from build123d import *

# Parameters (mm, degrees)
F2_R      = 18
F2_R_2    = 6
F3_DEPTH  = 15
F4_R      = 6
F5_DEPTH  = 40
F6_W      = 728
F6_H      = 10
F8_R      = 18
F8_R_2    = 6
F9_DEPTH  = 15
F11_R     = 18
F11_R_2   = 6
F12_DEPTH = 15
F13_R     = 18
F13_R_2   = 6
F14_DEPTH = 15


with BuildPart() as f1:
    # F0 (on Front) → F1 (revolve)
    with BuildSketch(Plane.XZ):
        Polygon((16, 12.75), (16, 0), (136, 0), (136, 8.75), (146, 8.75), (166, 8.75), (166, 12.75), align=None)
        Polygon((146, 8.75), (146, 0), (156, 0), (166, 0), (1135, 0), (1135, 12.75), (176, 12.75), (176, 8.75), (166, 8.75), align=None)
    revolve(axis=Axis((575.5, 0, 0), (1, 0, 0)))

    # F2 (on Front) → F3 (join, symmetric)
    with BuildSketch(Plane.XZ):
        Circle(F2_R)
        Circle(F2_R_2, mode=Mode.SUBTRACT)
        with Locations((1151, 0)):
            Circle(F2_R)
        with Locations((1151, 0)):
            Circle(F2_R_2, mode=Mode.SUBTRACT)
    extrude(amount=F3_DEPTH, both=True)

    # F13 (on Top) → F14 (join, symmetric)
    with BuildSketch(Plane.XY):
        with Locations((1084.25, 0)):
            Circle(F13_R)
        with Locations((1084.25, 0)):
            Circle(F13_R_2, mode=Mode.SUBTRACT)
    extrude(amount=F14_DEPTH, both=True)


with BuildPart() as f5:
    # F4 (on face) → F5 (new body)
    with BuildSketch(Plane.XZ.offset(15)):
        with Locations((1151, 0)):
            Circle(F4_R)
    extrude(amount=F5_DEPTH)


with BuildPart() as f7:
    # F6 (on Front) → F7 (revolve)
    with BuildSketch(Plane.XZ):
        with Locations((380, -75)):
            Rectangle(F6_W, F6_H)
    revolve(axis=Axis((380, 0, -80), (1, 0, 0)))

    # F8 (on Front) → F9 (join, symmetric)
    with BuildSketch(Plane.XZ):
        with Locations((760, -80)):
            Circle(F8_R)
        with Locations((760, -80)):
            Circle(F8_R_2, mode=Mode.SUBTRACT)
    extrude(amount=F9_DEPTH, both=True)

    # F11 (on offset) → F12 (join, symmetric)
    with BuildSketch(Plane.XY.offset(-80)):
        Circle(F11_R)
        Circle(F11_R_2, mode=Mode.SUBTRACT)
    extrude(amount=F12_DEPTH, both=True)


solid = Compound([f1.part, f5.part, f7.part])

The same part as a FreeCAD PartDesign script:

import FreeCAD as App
import Part
import Sketcher
from FreeCAD import Vector
Q = App.Units.Quantity

doc = App.newDocument("Part")
body = doc.addObject("PartDesign::Body", "Body")

sketch1 = body.newObject("Sketcher::SketchObject", "Sketch")
sketch1.AttachmentSupport = (doc.getObject("XZ_Plane"), [""])
sketch1.MapMode = "FlatFace"
sketch1.addGeometry([
    Part.LineSegment(Vector(16, 12.8, 0), Vector(16, 0, 0)),
    Part.LineSegment(Vector(16, 0, 0), Vector(136, 0, 0)),
    Part.LineSegment(Vector(136, 0, 0), Vector(136, 8.8, 0)),
    Part.LineSegment(Vector(136, 8.8, 0), Vector(146, 8.8, 0)),
    Part.LineSegment(Vector(146, 8.8, 0), Vector(146, 0, 0)),
    Part.LineSegment(Vector(146, 0, 0), Vector(1135, 0, 0)),
    Part.LineSegment(Vector(1135, 0, 0), Vector(1135, 12.8, 0)),
    Part.LineSegment(Vector(1135, 12.8, 0), Vector(176, 12.8, 0)),
    Part.LineSegment(Vector(176, 12.8, 0), Vector(176, 8.8, 0)),
    Part.LineSegment(Vector(176, 8.8, 0), Vector(166, 8.8, 0)),
    Part.LineSegment(Vector(166, 8.8, 0), Vector(166, 12.8, 0)),
    Part.LineSegment(Vector(166, 12.8, 0), Vector(16, 12.8, 0)),
], False)
sketch1.addConstraint([
    Sketcher.Constraint("Coincident", 0, 2, 1, 1),
    Sketcher.Constraint("Coincident", 1, 2, 2, 1),
    Sketcher.Constraint("Coincident", 2, 2, 3, 1),
    Sketcher.Constraint("Coincident", 3, 2, 4, 1),
    Sketcher.Constraint("Coincident", 4, 2, 5, 1),
    Sketcher.Constraint("Coincident", 5, 2, 6, 1),
    Sketcher.Constraint("Coincident", 6, 2, 7, 1),
    Sketcher.Constraint("Coincident", 7, 2, 8, 1),
    Sketcher.Constraint("Coincident", 8, 2, 9, 1),
    Sketcher.Constraint("Coincident", 9, 2, 10, 1),
    Sketcher.Constraint("Coincident", 10, 2, 11, 1),
    Sketcher.Constraint("Coincident", 11, 2, 0, 1),
    Sketcher.Constraint("Vertical", 0),
    Sketcher.Constraint("Horizontal", 1),
    Sketcher.Constraint("Vertical", 2),
    Sketcher.Constraint("Horizontal", 3),
    Sketcher.Constraint("Vertical", 4),
    Sketcher.Constraint("Horizontal", 5),
    Sketcher.Constraint("Vertical", 6),
    Sketcher.Constraint("Horizontal", 7),
    Sketcher.Constraint("Vertical", 8),
    Sketcher.Constraint("Horizontal", 9),
    Sketcher.Constraint("Vertical", 10),
    Sketcher.Constraint("Horizontal", 11),
    Sketcher.Constraint("PointOnObject", 0, 2, -1),
    Sketcher.Constraint("PointOnObject", 4, 2, -1),
    Sketcher.Constraint("Horizontal", 3, 2, 8, 2),
    Sketcher.Constraint("Horizontal", 7, 2, 10, 2),
    Sketcher.Constraint("Equal", 3, 9),
    Sketcher.Constraint("DistanceX", 1, 1, 1, 2, Q("120 mm")),
    Sketcher.Constraint("DistanceX", 3, 1, 3, 2, Q("10 mm")),
    Sketcher.Constraint("DistanceX", 5, 1, 5, 2, Q("989 mm")),
    Sketcher.Constraint("DistanceX", 7, 2, 7, 1, Q("959 mm")),
    Sketcher.Constraint("DistanceY", 8, 2, 8, 1, Q("4 mm")),
    Sketcher.Constraint("DistanceX", -1, 1, 0, 2, Q("16 mm")),
    Sketcher.Constraint("DistanceY", 0, 2, 0, 1, Q("12.75 mm")),
])
revolution = body.newObject("PartDesign::Revolution", "Revolution")
revolution.Profile = sketch1
revolution.ReferenceAxis = (sketch1, ["H_Axis"])
revolution.Angle = 360

sketch2 = body.newObject("Sketcher::SketchObject", "Sketch001")
sketch2.AttachmentSupport = (doc.getObject("XZ_Plane"), [""])
sketch2.MapMode = "FlatFace"
sketch2.addGeometry([
    Part.Circle(Vector(0, 0, 0), Vector(0, 0, 1), 18),
    Part.Circle(Vector(0, 0, 0), Vector(0, 0, 1), 6),
    Part.Circle(Vector(1151, 0, 0), Vector(0, 0, 1), 18),
    Part.Circle(Vector(1151, 0, 0), Vector(0, 0, 1), 6),
], False)
sketch2.addConstraint([
    Sketcher.Constraint("Coincident", 0, 3, -1, 1),
    Sketcher.Constraint("Coincident", 1, 3, -1, 1),
    Sketcher.Constraint("Coincident", 3, 3, 2, 3),
    Sketcher.Constraint("Equal", 0, 2),
    Sketcher.Constraint("Equal", 1, 3),
    Sketcher.Constraint("PointOnObject", 2, 3, -1),
    Sketcher.Constraint("Diameter", 0, Q("36 mm")),
    Sketcher.Constraint("Diameter", 1, Q("12 mm")),
    Sketcher.Constraint("DistanceX", -1, 1, 2, 3, Q("1151 mm")),
])
pad1 = body.newObject("PartDesign::Pad", "Pad")
pad1.Profile = sketch2
pad1.Length = 30
pad1.Midplane = True

sketch3 = body.newObject("Sketcher::SketchObject", "Sketch002")
sketch3.AttachmentSupport = (doc.getObject("XY_Plane"), [""])
sketch3.MapMode = "FlatFace"
sketch3.addGeometry([
    Part.Circle(Vector(1084, 0, 0), Vector(0, 0, 1), 18),
    Part.Circle(Vector(1084, 0, 0), Vector(0, 0, 1), 6),
], False)
sketch3.addConstraint([
    Sketcher.Constraint("Coincident", 1, 3, 0, 3),
    Sketcher.Constraint("PointOnObject", 0, 3, -1),
    Sketcher.Constraint("Diameter", 0, Q("36 mm")),
    Sketcher.Constraint("Diameter", 1, Q("12 mm")),
    Sketcher.Constraint("DistanceX", -1, 1, 0, 3, Q("1084.25 mm")),
])
pad2 = body.newObject("PartDesign::Pad", "Pad001")
pad2.Profile = sketch3
pad2.Length = 30
pad2.Midplane = True
body2 = doc.addObject("PartDesign::Body", "Body001")

sketch4 = body2.newObject("Sketcher::SketchObject", "Sketch003")
sketch4.AttachmentSupport = (doc.getObject("XZ_Plane001"), [""])
sketch4.MapMode = "FlatFace"
sketch4.AttachmentOffset = App.Placement(Vector(0, 0, 15), App.Rotation())
sketch4.addGeometry(Part.Circle(Vector(1151, 0, 0), Vector(0, 0, 1), 6), False)
sketch4.addConstraint([
    Sketcher.Constraint("PointOnObject", 0, 3, -1),
    Sketcher.Constraint("Diameter", 0, Q("12 mm")),
    Sketcher.Constraint("DistanceX", -1, 1, 0, 3, Q("1151 mm")),
])
pad3 = body2.newObject("PartDesign::Pad", "Pad002")
pad3.Profile = sketch4
pad3.Length = 40
body3 = doc.addObject("PartDesign::Body", "Body002")

sketch5 = body3.newObject("Sketcher::SketchObject", "Sketch004")
sketch5.AttachmentSupport = (doc.getObject("XZ_Plane002"), [""])
sketch5.MapMode = "FlatFace"
sketch5.addGeometry([
    Part.LineSegment(Vector(16, -70, 0), Vector(16, -80, 0)),
    Part.LineSegment(Vector(16, -80, 0), Vector(744, -80, 0)),
    Part.LineSegment(Vector(744, -80, 0), Vector(744, -70, 0)),
    Part.LineSegment(Vector(744, -70, 0), Vector(16, -70, 0)),
], False)
sketch5.addGeometry(Part.LineSegment(Vector(16, -80, 0), Vector(744, -80, 0)), True)
sketch5.addConstraint([
    Sketcher.Constraint("Coincident", 0, 2, 1, 1),
    Sketcher.Constraint("Coincident", 1, 2, 2, 1),
    Sketcher.Constraint("Coincident", 2, 2, 3, 1),
    Sketcher.Constraint("Coincident", 3, 2, 0, 1),
    Sketcher.Constraint("Vertical", 0),
    Sketcher.Constraint("Horizontal", 1),
    Sketcher.Constraint("Vertical", 2),
    Sketcher.Constraint("Horizontal", 3),
    Sketcher.Constraint("Horizontal", 4),
    Sketcher.Constraint("Coincident", 4, 1, 0, 2),
    Sketcher.Constraint("Vertical", 2, 2, 4, 2),
    Sketcher.Constraint("DistanceX", 1, 1, 1, 2, Q("728 mm")),
    Sketcher.Constraint("DistanceY", 0, 2, 0, 1, Q("10 mm")),
    Sketcher.Constraint("DistanceX", -1, 1, 0, 2, Q("16 mm")),
    Sketcher.Constraint("DistanceY", 0, 2, -1, 1, Q("80 mm")),
])
revolution2 = body3.newObject("PartDesign::Revolution", "Revolution001")
revolution2.Profile = sketch5
revolution2.ReferenceAxis = (sketch5, ["Axis0"])
revolution2.Angle = 360

sketch6 = body3.newObject("Sketcher::SketchObject", "Sketch005")
sketch6.AttachmentSupport = (doc.getObject("XZ_Plane002"), [""])
sketch6.MapMode = "FlatFace"
sketch6.addGeometry([
    Part.Circle(Vector(760, -80, 0), Vector(0, 0, 1), 18),
    Part.Circle(Vector(760, -80, 0), Vector(0, 0, 1), 6),
], False)
sketch6.addConstraint([
    Sketcher.Constraint("Coincident", 1, 3, 0, 3),
    Sketcher.Constraint("Diameter", 0, Q("36 mm")),
    Sketcher.Constraint("Diameter", 1, Q("12 mm")),
    Sketcher.Constraint("DistanceX", -1, 1, 0, 3, Q("760 mm")),
    Sketcher.Constraint("DistanceY", 0, 3, -1, 1, Q("80 mm")),
])
pad4 = body3.newObject("PartDesign::Pad", "Pad003")
pad4.Profile = sketch6
pad4.Length = 30
pad4.Midplane = True

sketch7 = body3.newObject("Sketcher::SketchObject", "Sketch006")
sketch7.AttachmentSupport = (doc.getObject("XY_Plane002"), [""])
sketch7.MapMode = "FlatFace"
sketch7.AttachmentOffset = App.Placement(Vector(0, 0, -80), App.Rotation())
sketch7.addGeometry([
    Part.Circle(Vector(0, 0, 0), Vector(0, 0, 1), 18),
    Part.Circle(Vector(0, 0, 0), Vector(0, 0, 1), 6),
], False)
sketch7.addConstraint([
    Sketcher.Constraint("Coincident", 0, 3, -1, 1),
    Sketcher.Constraint("Coincident", 1, 3, -1, 1),
    Sketcher.Constraint("Diameter", 0, Q("36 mm")),
    Sketcher.Constraint("Diameter", 1, Q("12 mm")),
])
pad5 = body3.newObject("PartDesign::Pad", "Pad004")
pad5.Profile = sketch7
pad5.Length = 30
pad5.Midplane = True

doc.recompute()
